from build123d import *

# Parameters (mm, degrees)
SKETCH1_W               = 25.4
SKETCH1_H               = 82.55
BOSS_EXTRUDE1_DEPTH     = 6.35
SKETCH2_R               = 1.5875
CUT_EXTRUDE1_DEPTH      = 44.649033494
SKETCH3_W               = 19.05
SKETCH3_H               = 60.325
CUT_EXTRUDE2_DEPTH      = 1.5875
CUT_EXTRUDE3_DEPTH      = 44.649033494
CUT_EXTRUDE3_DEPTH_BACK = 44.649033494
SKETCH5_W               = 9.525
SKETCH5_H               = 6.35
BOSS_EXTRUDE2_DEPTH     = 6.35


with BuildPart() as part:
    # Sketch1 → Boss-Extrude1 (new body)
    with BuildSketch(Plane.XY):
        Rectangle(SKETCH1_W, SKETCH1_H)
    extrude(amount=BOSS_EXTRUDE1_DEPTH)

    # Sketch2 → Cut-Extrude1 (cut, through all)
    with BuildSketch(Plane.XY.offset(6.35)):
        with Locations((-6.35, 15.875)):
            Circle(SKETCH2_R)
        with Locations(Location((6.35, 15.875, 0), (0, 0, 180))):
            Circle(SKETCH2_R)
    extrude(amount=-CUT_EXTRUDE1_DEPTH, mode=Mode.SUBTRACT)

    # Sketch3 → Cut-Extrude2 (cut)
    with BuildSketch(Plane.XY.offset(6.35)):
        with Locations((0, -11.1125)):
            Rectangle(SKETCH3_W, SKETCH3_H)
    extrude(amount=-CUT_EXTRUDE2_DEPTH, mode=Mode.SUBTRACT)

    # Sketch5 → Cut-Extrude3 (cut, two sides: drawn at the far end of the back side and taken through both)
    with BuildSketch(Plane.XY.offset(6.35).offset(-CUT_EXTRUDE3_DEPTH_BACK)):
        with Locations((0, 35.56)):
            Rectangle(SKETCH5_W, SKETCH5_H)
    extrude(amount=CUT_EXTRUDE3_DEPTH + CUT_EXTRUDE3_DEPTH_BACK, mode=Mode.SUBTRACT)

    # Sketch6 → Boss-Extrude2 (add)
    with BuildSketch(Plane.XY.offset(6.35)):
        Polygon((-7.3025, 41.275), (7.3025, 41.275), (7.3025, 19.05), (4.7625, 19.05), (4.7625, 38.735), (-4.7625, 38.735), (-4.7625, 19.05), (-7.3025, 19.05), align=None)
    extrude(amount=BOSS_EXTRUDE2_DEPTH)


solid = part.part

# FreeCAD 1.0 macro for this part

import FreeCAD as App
import Part
import Sketcher

V = App.Vector
Q = App.Units.Quantity

doc = App.newDocument("Part")
body = doc.addObject("PartDesign::Body", "Body")

# Sketch on XY plane
sketch1 = body.newObject("Sketcher::SketchObject", "Sketch")
sketch1.AttachmentSupport = (doc.getObject("XY_Plane"), [""])
sketch1.MapMode = "FlatFace"
sketch1.addGeometry(Part.LineSegment(V(-13, 41, 0), V(-13, -41, 0)), False)
sketch1.addGeometry(Part.LineSegment(V(-13, -41, 0), V(13, -41, 0)), False)
sketch1.addGeometry(Part.LineSegment(V(13, -41, 0), V(13, 41, 0)), False)
sketch1.addGeometry(Part.LineSegment(V(13, 41, 0), V(-13, 41, 0)), False)
sketch1.addConstraint(Sketcher.Constraint("Coincident", 0, 2, 1, 1))
sketch1.addConstraint(Sketcher.Constraint("Coincident", 1, 2, 2, 1))
sketch1.addConstraint(Sketcher.Constraint("Coincident", 2, 2, 3, 1))
sketch1.addConstraint(Sketcher.Constraint("Coincident", 3, 2, 0, 1))
sketch1.addConstraint(Sketcher.Constraint("Vertical", 0))
sketch1.addConstraint(Sketcher.Constraint("Horizontal", 1))
sketch1.addConstraint(Sketcher.Constraint("Vertical", 2))
sketch1.addConstraint(Sketcher.Constraint("Horizontal", 3))
sketch1.addConstraint(Sketcher.Constraint("Symmetric", 0, 2, 2, 2, -1, 1))
sketch1.addConstraint(Sketcher.Constraint("DistanceX", 1, 1, 1, 2, Q("1 in")))
sketch1.addConstraint(Sketcher.Constraint("DistanceY", 0, 2, 0, 1, Q("3.25 in")))
pad1 = body.newObject("PartDesign::Pad", "Pad")
pad1.Profile = sketch1
pad1.Length = Q("0.25 in")

# Sketch on XY plane
sketch2 = body.newObject("Sketcher::SketchObject", "Sketch001")
sketch2.AttachmentSupport = (doc.getObject("XY_Plane"), [""])
sketch2.MapMode = "FlatFace"
sketch2.AttachmentOffset = App.Placement(V(0, 0, 0.25 * 25.4), App.Rotation())
sketch2.addGeometry(Part.Circle(V(-6.3, 15.9, 0), V(0, 0, 1), 1.6), False)
sketch2.addGeometry(Part.Circle(V(6.3, 15.9, 0), V(0, 0, 1), 1.6), False)
sketch2.addConstraint(Sketcher.Constraint("Equal", 0, 1))
sketch2.addConstraint(Sketcher.Constraint("Symmetric", 0, 3, 1, 3, -2))
sketch2.addConstraint(Sketcher.Constraint("Diameter", 0, Q("0.125 in")))
sketch2.addConstraint(Sketcher.Constraint("DistanceX", 0, 3, 1, 3, Q("0.5 in")))
sketch2.addConstraint(Sketcher.Constraint("DistanceY", -1, 1, 0, 3, Q("0.625 in")))
pocket1 = body.newObject("PartDesign::Pocket", "Pocket")
pocket1.Profile = sketch2
pocket1.Type = "ThroughAll"

# Sketch on XY plane
sketch3 = body.newObject("Sketcher::SketchObject", "Sketch002")
sketch3.AttachmentSupport = (doc.getObject("XY_Plane"), [""])
sketch3.MapMode = "FlatFace"
sketch3.AttachmentOffset = App.Placement(V(0, 0, 0.25 * 25.4), App.Rotation())
sketch3.addGeometry(Part.LineSegment(V(-10, 19, 0), V(-10, -41, 0)), False)
sketch3.addGeometry(Part.LineSegment(V(-10, -41, 0), V(10, -41, 0)), False)
sketch3.addGeometry(Part.LineSegment(V(10, -41, 0), V(10, 19, 0)), False)
sketch3.addGeometry(Part.LineSegment(V(10, 19, 0), V(-10, 19, 0)), False)
sketch3.addConstraint(Sketcher.Constraint("Coincident", 0, 2, 1, 1))
sketch3.addConstraint(Sketcher.Constraint("Coincident", 1, 2, 2, 1))
sketch3.addConstraint(Sketcher.Constraint("Coincident", 2, 2, 3, 1))
sketch3.addConstraint(Sketcher.Constraint("Coincident", 3, 2, 0, 1))
sketch3.addConstraint(Sketcher.Constraint("Vertical", 0))
sketch3.addConstraint(Sketcher.Constraint("Horizontal", 1))
sketch3.addConstraint(Sketcher.Constraint("Vertical", 2))
sketch3.addConstraint(Sketcher.Constraint("Horizontal", 3))
sketch3.addConstraint(Sketcher.Constraint("DistanceX", 1, 1, 1, 2, Q("0.75 in")))
sketch3.addConstraint(Sketcher.Constraint("DistanceY", 0, 2, 0, 1, Q("2.375 in")))
sketch3.addConstraint(Sketcher.Constraint("DistanceY", -1, 1, 2, 2, Q("0.75 in")))
sketch3.addConstraint(Sketcher.Constraint("DistanceX", 0, 2, -1, 1, Q("0.375 in")))
pocket2 = body.newObject("PartDesign::Pocket", "Pocket001")
pocket2.Profile = sketch3
pocket2.Length = Q("0.0625 in")

# Sketch on XY plane
sketch4 = body.newObject("Sketcher::SketchObject", "Sketch003")
sketch4.AttachmentSupport = (doc.getObject("XY_Plane"), [""])
sketch4.MapMode = "FlatFace"
sketch4.AttachmentOffset = App.Placement(V(0, 0, 0.25 * 25.4), App.Rotation())
sketch4.addGeometry(Part.LineSegment(V(-5, 39, 0), V(-5, 32, 0)), False)
sketch4.addGeometry(Part.LineSegment(V(-5, 32, 0), V(5, 32, 0)), False)
sketch4.addGeometry(Part.LineSegment(V(5, 32, 0), V(5, 39, 0)), False)
sketch4.addGeometry(Part.LineSegment(V(5, 39, 0), V(-5, 39, 0)), False)
sketch4.addConstraint(Sketcher.Constraint("Coincident", 0, 2, 1, 1))
sketch4.addConstraint(Sketcher.Constraint("Coincident", 1, 2, 2, 1))
sketch4.addConstraint(Sketcher.Constraint("Coincident", 2, 2, 3, 1))
sketch4.addConstraint(Sketcher.Constraint("Coincident", 3, 2, 0, 1))
sketch4.addConstraint(Sketcher.Constraint("Vertical", 0))
sketch4.addConstraint(Sketcher.Constraint("Horizontal", 1))
sketch4.addConstraint(Sketcher.Constraint("Vertical", 2))
sketch4.addConstraint(Sketcher.Constraint("Horizontal", 3))
sketch4.addConstraint(Sketcher.Constraint("DistanceY", 0, 2, 0, 1, Q("0.25 in")))
sketch4.addConstraint(Sketcher.Constraint("DistanceX", 1, 1, 1, 2, Q("0.375 in")))
sketch4.addConstraint(Sketcher.Constraint("DistanceX", 0, 2, -1, 1, Q("0.1875 in")))
sketch4.addConstraint(Sketcher.Constraint("DistanceY", -1, 1, 0, 2, Q("1.275 in")))
pocket3 = body.newObject("PartDesign::Pocket", "Pocket002")
pocket3.Profile = sketch4
pocket3.Type = "ThroughAll"
pocket3.Midplane = True

# Sketch on XY plane
sketch5 = body.newObject("Sketcher::SketchObject", "Sketch004")
sketch5.AttachmentSupport = (doc.getObject("XY_Plane"), [""])
sketch5.MapMode = "FlatFace"
sketch5.AttachmentOffset = App.Placement(V(0, 0, 0.25 * 25.4), App.Rotation())
sketch5.addGeometry(Part.LineSegment(V(7.3, 41.3, 0), V(-7.3, 41.3, 0)), False)
sketch5.addGeometry(Part.LineSegment(V(-7.3, 41.3, 0), V(-7.3, 19.1, 0)), False)
sketch5.addGeometry(Part.LineSegment(V(-7.3, 19.1, 0), V(-4.8, 19.1, 0)), False)
sketch5.addGeometry(Part.LineSegment(V(-4.8, 19.1, 0), V(-4.8, 38.7, 0)), False)
sketch5.addGeometry(Part.LineSegment(V(-4.8, 38.7, 0), V(4.8, 38.7, 0)), False)
sketch5.addGeometry(Part.LineSegment(V(4.8, 38.7, 0), V(4.8, 19.1, 0)), False)
sketch5.addGeometry(Part.LineSegment(V(4.8, 19.1, 0), V(7.3, 19.1, 0)), False)
sketch5.addGeometry(Part.LineSegment(V(7.3, 19.1, 0), V(7.3, 41.3, 0)), False)
sketch5.addConstraint(Sketcher.Constraint("Coincident", 0, 2, 1, 1))
sketch5.addConstraint(Sketcher.Constraint("Coincident", 1, 2, 2, 1))
sketch5.addConstraint(Sketcher.Constraint("Coincident", 2, 2, 3, 1))
sketch5.addConstraint(Sketcher.Constraint("Coincident", 3, 2, 4, 1))
sketch5.addConstraint(Sketcher.Constraint("Coincident", 4, 2, 5, 1))
sketch5.addConstraint(Sketcher.Constraint("Coincident", 5, 2, 6, 1))
sketch5.addConstraint(Sketcher.Constraint("Coincident", 6, 2, 7, 1))
sketch5.addConstraint(Sketcher.Constraint("Coincident", 7, 2, 0, 1))
sketch5.addConstraint(Sketcher.Constraint("Horizontal", 0))
sketch5.addConstraint(Sketcher.Constraint("Vertical", 1))
sketch5.addConstraint(Sketcher.Constraint("Horizontal", 2))
sketch5.addConstraint(Sketcher.Constraint("Vertical", 3))
sketch5.addConstraint(Sketcher.Constraint("Horizontal", 4))
sketch5.addConstraint(Sketcher.Constraint("Vertical", 5))
sketch5.addConstraint(Sketcher.Constraint("Horizontal", 6))
sketch5.addConstraint(Sketcher.Constraint("Vertical", 7))
sketch5.addConstraint(Sketcher.Constraint("Symmetric", 2, 2, 5, 2, -2))
sketch5.addConstraint(Sketcher.Constraint("Equal", 2, 6))
sketch5.addConstraint(Sketcher.Constraint("DistanceX", 2, 1, 2, 2, Q("0.1 in")))
sketch5.addConstraint(Sketcher.Constraint("DistanceY", 3, 2, 0, 2, Q("0.1 in")))
sketch5.addConstraint(Sketcher.Constraint("DistanceX", 0, 2, 0, 1, Q("0.575 in")))
sketch5.addConstraint(Sketcher.Constraint("DistanceY", 1, 2, 1, 1, Q("0.875 in")))
sketch5.addConstraint(Sketcher.Constraint("DistanceY", -1, 1, 1, 2, Q("0.75 in")))
pad2 = body.newObject("PartDesign::Pad", "Pad001")
pad2.Profile = sketch5
pad2.Length = Q("0.25 in")

doc.recompute()
